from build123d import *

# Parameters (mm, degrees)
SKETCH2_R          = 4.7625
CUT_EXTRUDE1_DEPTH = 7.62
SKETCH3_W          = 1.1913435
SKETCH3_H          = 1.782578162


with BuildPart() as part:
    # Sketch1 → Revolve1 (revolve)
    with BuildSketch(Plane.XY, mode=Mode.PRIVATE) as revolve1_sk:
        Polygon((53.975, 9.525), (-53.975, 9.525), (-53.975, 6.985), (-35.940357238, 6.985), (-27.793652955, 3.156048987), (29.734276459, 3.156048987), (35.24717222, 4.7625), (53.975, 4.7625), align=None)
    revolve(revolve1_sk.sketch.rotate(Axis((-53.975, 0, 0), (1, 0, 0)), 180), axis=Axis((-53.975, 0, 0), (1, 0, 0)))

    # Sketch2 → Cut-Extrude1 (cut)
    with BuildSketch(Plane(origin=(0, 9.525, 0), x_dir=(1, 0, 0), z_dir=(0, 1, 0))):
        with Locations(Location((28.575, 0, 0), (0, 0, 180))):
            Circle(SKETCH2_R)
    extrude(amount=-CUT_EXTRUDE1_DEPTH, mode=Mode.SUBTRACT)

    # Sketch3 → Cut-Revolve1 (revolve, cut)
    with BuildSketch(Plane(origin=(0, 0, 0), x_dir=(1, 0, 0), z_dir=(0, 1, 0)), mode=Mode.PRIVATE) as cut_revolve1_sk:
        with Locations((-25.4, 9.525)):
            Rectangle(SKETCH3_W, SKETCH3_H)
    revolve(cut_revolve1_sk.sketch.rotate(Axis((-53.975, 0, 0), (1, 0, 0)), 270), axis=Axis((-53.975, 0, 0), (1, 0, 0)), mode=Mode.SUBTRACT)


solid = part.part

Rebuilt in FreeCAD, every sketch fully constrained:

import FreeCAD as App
import Part
import Sketcher

V = App.Vector
Q = App.Units.Quantity

doc = App.newDocument("Part")
params = doc.addObject("Spreadsheet::Sheet", "Params")
for row, (alias, value) in enumerate([
    ("sketch1_height", "0.1 in"),
    ("sketch1_width", "4.25 in"),
    ("sketch1_height2", "0.1875 in"),
    ("revolution_angle", "360 deg"),
    ("sketch2_diameter", "0.375 in"),
    ("pocket1_length", "0.3 in"),
    ("groove_angle", "360 deg"),
], start=1):
    params.set(f"A{row}", alias)
    params.set(f"B{row}", "=" + value)
    params.setAlias(f"B{row}", alias)

body = doc.addObject("PartDesign::Body", "Body")

sketch1 = body.newObject("Sketcher::SketchObject", "Sketch")
sketch1.AttachmentSupport = (doc.getObject("XY_Plane"), [""])
sketch1.MapMode = "FlatFace"
sketch1.addGeometry([
    Part.LineSegment(V(54, 9.5, 0), V(-54, 9.5, 0)),
    Part.LineSegment(V(-54, 9.5, 0), V(-54, 7, 0)),
    Part.LineSegment(V(-54, 7, 0), V(-35.9, 7, 0)),
    Part.LineSegment(V(-35.9, 7, 0), V(-27.8, 3.2, 0)),
    Part.LineSegment(V(-27.8, 3.2, 0), V(29.7, 3.2, 0)),
    Part.LineSegment(V(29.7, 3.2, 0), V(35.2, 4.8, 0)),
    Part.LineSegment(V(35.2, 4.8, 0), V(54, 4.8, 0)),
    Part.LineSegment(V(54, 4.8, 0), V(54, 9.5, 0)),
], False)
sketch1.addConstraint([
    Sketcher.Constraint("Coincident", 0, 2, 1, 1),
    Sketcher.Constraint("Coincident", 1, 2, 2, 1),
    Sketcher.Constraint("Coincident", 2, 2, 3, 1),
    Sketcher.Constraint("Coincident", 3, 2, 4, 1),
    Sketcher.Constraint("Coincident", 4, 2, 5, 1),
    Sketcher.Constraint("Coincident", 5, 2, 6, 1),
    Sketcher.Constraint("Coincident", 6, 2, 7, 1),
    Sketcher.Constraint("Coincident", 7, 2, 0, 1),
    Sketcher.Constraint("Horizontal", 0),
    Sketcher.Constraint("Vertical", 1),
    Sketcher.Constraint("Horizontal", 2),
    Sketcher.Constraint("Horizontal", 4),
    Sketcher.Constraint("Horizontal", 6),
    Sketcher.Constraint("Vertical", 7),
    Sketcher.Constraint("DistanceY", 1, 2, 1, 1, Q("0.1 in")),
    Sketcher.Constraint("DistanceX", 0, 2, 0, 1, Q("4.25 in")),
    Sketcher.Constraint("DistanceY", 7, 1, 7, 2, Q("0.1875 in")),
    Sketcher.Constraint("DistanceX", 0, 2, -1, 1, Q("2.125 in")),
    Sketcher.Constraint("DistanceY", -1, 1, 0, 2, Q("0.375 in")),
    Sketcher.Constraint("DistanceX", 4, 1, 4, 2, 57.527929),
    Sketcher.Constraint("DistanceX", 2, 1, 2, 2, 18.034643),
    Sketcher.Constraint("DistanceX", 6, 1, 6, 2, 18.727828),
    Sketcher.Constraint("DistanceY", -1, 1, 3, 2, 3.156049),
    Sketcher.Constraint("Distance", 3, 9.001647),
])
sketch1.setExpression("Constraints[14]", "Params.sketch1_height")
sketch1.setExpression("Constraints[15]", "Params.sketch1_width")
sketch1.setExpression("Constraints[16]", "Params.sketch1_height2")
revolution = body.newObject("PartDesign::Revolution", "Revolution")
revolution.Profile = sketch1
revolution.ReferenceAxis = (sketch1, ["H_Axis"])
revolution.setExpression("Angle", "Params.revolution_angle")

sketch2 = body.newObject("Sketcher::SketchObject", "Sketch001")
sketch2.AttachmentSupport = (doc.getObject("XZ_Plane"), [""])
sketch2.MapMode = "FlatFace"
sketch2.AttachmentOffset = App.Placement(V(0, 0, -0.375 * 25.4), App.Rotation())
sketch2.addGeometry(Part.Circle(V(28.6, 0, 0), V(0, 0, 1), 4.8), False)
sketch2.addConstraint([
    Sketcher.Constraint("PointOnObject", 0, 3, -1),
    Sketcher.Constraint("Diameter", 0, Q("0.375 in")),
    Sketcher.Constraint("DistanceX", -1, 1, 0, 3, Q("1.125 in")),
])
sketch2.setExpression("Constraints[1]", "Params.sketch2_diameter")
pocket1 = body.newObject("PartDesign::Pocket", "Pocket")
pocket1.Profile = sketch2
pocket1.setExpression("Length", "Params.pocket1_length")
pocket1.Reversed = True

sketch3 = body.newObject("Sketcher::SketchObject", "Sketch002")
sketch3.AttachmentSupport = (doc.getObject("XZ_Plane"), [""])
sketch3.MapMode = "FlatFace"
sketch3.addGeometry([
    Part.LineSegment(V(-26, -10.4, 0), V(-26, -8.6, 0)),
    Part.LineSegment(V(-26, -8.6, 0), V(-24.8, -8.6, 0)),
    Part.LineSegment(V(-24.8, -8.6, 0), V(-24.8, -10.4, 0)),
    Part.LineSegment(V(-24.8, -10.4, 0), V(-26, -10.4, 0)),
], False)
sketch3.addConstraint([
    Sketcher.Constraint("Coincident", 0, 2, 1, 1),
    Sketcher.Constraint("Coincident", 1, 2, 2, 1),
    Sketcher.Constraint("Coincident", 2, 2, 3, 1),
    Sketcher.Constraint("Coincident", 3, 2, 0, 1),
    Sketcher.Constraint("Vertical", 0),
    Sketcher.Constraint("Horizontal", 1),
    Sketcher.Constraint("Vertical", 2),
    Sketcher.Constraint("Horizontal", 3),
    Sketcher.Constraint("DistanceY", 0, 1, 0, 2, 1.782578),
    Sketcher.Constraint("DistanceX", 1, 1, 1, 2, 1.191343),
    Sketcher.Constraint("DistanceX", 0, 2, -1, 1, 25.995672),
    Sketcher.Constraint("DistanceY", 0, 2, -1, 1, 8.633711),
])
groove = body.newObject("PartDesign::Groove", "Groove")
groove.Profile = sketch3
groove.ReferenceAxis = (sketch3, ["H_Axis"])
groove.setExpression("Angle", "Params.groove_angle")

doc.recompute()
